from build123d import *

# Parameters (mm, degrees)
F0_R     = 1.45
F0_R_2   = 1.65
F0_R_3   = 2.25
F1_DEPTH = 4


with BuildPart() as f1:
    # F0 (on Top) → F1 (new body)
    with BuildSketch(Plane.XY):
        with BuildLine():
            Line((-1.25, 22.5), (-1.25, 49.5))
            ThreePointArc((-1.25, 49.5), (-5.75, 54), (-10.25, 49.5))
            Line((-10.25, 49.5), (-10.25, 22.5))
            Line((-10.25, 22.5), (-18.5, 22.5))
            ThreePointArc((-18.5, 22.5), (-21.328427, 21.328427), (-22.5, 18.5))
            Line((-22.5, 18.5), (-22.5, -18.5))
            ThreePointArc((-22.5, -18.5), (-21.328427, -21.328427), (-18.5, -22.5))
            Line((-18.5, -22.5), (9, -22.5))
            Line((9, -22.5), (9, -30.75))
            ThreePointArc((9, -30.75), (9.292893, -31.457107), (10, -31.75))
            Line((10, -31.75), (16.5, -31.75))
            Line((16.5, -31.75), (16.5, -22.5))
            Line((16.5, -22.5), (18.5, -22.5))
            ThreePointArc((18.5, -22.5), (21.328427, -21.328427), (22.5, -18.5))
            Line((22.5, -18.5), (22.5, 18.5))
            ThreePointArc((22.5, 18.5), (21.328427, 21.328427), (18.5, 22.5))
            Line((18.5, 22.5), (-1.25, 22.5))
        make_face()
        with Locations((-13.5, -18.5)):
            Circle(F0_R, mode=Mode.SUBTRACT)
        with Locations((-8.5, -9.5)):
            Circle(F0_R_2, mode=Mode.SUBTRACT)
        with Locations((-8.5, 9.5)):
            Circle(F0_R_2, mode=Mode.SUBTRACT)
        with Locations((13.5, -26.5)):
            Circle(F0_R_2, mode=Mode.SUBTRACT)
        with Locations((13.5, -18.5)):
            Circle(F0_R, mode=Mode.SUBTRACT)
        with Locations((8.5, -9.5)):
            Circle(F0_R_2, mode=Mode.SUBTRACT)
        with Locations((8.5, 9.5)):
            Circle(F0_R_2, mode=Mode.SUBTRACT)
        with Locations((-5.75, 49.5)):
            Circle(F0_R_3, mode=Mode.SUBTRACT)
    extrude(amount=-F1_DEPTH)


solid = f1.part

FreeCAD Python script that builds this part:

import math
import FreeCAD as App
import Part
import Sketcher
from FreeCAD import Vector
Q = App.Units.Quantity

doc = App.newDocument("Part")
body = doc.addObject("PartDesign::Body", "Body")

# Sketch on XY plane
sketch1 = body.newObject("Sketcher::SketchObject", "Sketch")
sketch1.AttachmentSupport = (doc.getObject("XY_Plane"), [""])
sketch1.MapMode = "FlatFace"
sketch1.addGeometry([
    Part.LineSegment(Vector(-1.2, 22.5, 0), Vector(-1.2, 49.5, 0)),  # 0
    Part.ArcOfCircle(Part.Circle(Vector(-5.8, 49.5, 0), Vector(0, 0, 1), 4.5), math.radians(0), math.radians(180)),  # 1
    Part.LineSegment(Vector(-10.2, 49.5, 0), Vector(-10.2, 22.5, 0)),  # 2
    Part.LineSegment(Vector(-10.2, 22.5, 0), Vector(-18.5, 22.5, 0)),  # 3
    Part.ArcOfCircle(Part.Circle(Vector(-18.5, 18.5, 0), Vector(0, 0, 1), 4), math.radians(90), math.radians(180)),  # 4
    Part.LineSegment(Vector(-22.5, 18.5, 0), Vector(-22.5, -18.5, 0)),  # 5
    Part.ArcOfCircle(Part.Circle(Vector(-18.5, -18.5, 0), Vector(0, 0, 1), 4), math.radians(-180), math.radians(-90)),  # 6
    Part.LineSegment(Vector(-18.5, -22.5, 0), Vector(9, -22.5, 0)),  # 7
    Part.LineSegment(Vector(9, -22.5, 0), Vector(9, -30.8, 0)),  # 8
    Part.ArcOfCircle(Part.Circle(Vector(10, -30.8, 0), Vector(0, 0, 1), 1), math.radians(180), math.radians(270)),  # 9
    Part.LineSegment(Vector(10, -31.8, 0), Vector(16.5, -31.8, 0)),  # 10
    Part.LineSegment(Vector(16.5, -31.8, 0), Vector(16.5, -22.5, 0)),  # 11
    Part.LineSegment(Vector(16.5, -22.5, 0), Vector(18.5, -22.5, 0)),  # 12
    Part.ArcOfCircle(Part.Circle(Vector(18.5, -18.5, 0), Vector(0, 0, 1), 4), math.radians(-90), math.radians(0)),  # 13
    Part.LineSegment(Vector(22.5, -18.5, 0), Vector(22.5, 18.5, 0)),  # 14
    Part.ArcOfCircle(Part.Circle(Vector(18.5, 18.5, 0), Vector(0, 0, 1), 4), math.radians(0), math.radians(90)),  # 15
    Part.LineSegment(Vector(18.5, 22.5, 0), Vector(-1.2, 22.5, 0)),  # 16
    Part.Circle(Vector(-13.5, -18.5, 0), Vector(0, 0, 1), 1.4),  # 17
    Part.Circle(Vector(-8.5, -9.5, 0), Vector(0, 0, 1), 1.6),  # 18
    Part.Circle(Vector(-8.5, 9.5, 0), Vector(0, 0, 1), 1.6),  # 19
    Part.Circle(Vector(13.5, -26.5, 0), Vector(0, 0, 1), 1.6),  # 20
    Part.Circle(Vector(13.5, -18.5, 0), Vector(0, 0, 1), 1.4),  # 21
    Part.Circle(Vector(8.5, -9.5, 0), Vector(0, 0, 1), 1.6),  # 22
    Part.Circle(Vector(8.5, 9.5, 0), Vector(0, 0, 1), 1.6),  # 23
    Part.Circle(Vector(-5.8, 49.5, 0), Vector(0, 0, 1), 2.2),  # 24
], False)
sketch1.addConstraint([
    Sketcher.Constraint("Tangent", 0, 2, 1, 1),
    Sketcher.Constraint("Tangent", 1, 2, 2, 1),
    Sketcher.Constraint("Coincident", 2, 2, 3, 1),
    Sketcher.Constraint("Tangent", 3, 2, 4, 1),
    Sketcher.Constraint("Tangent", 4, 2, 5, 1),
    Sketcher.Constraint("Tangent", 5, 2, 6, 1),
    Sketcher.Constraint("Tangent", 6, 2, 7, 1),
    Sketcher.Constraint("Coincident", 7, 2, 8, 1),
    Sketcher.Constraint("Tangent", 8, 2, 9, 1),
    Sketcher.Constraint("Tangent", 9, 2, 10, 1),
    Sketcher.Constraint("Coincident", 10, 2, 11, 1),
    Sketcher.Constraint("Coincident", 11, 2, 12, 1),
    Sketcher.Constraint("Tangent", 12, 2, 13, 1),
    Sketcher.Constraint("Tangent", 13, 2, 14, 1),
    Sketcher.Constraint("Tangent", 14, 2, 15, 1),
    Sketcher.Constraint("Tangent", 15, 2, 16, 1),
    Sketcher.Constraint("Coincident", 16, 2, 0, 1),
    Sketcher.Constraint("Vertical", 0),
    Sketcher.Constraint("Vertical", 2),
    Sketcher.Constraint("Horizontal", 3),
    Sketcher.Constraint("Vertical", 5),
    Sketcher.Constraint("Horizontal", 7),
    Sketcher.Constraint("Vertical", 8),
    Sketcher.Constraint("Horizontal", 10),
    Sketcher.Constraint("Vertical", 11),
    Sketcher.Constraint("Horizontal", 12),
    Sketcher.Constraint("Vertical", 14),
    Sketcher.Constraint("Horizontal", 16),
    Sketcher.Constraint("Coincident", 24, 3, 1, 3),
    Sketcher.Constraint("Equal", 4, 6),
    Sketcher.Constraint("Equal", 6, 13),
    Sketcher.Constraint("Equal", 13, 15),
    Sketcher.Constraint("Equal", 18, 19),
    Sketcher.Constraint("Equal", 19, 20),
    Sketcher.Constraint("Equal", 17, 21),
    Sketcher.Constraint("Equal", 20, 22),
    Sketcher.Constraint("Equal", 22, 23),
    Sketcher.Constraint("Symmetric", 4, 3, 13, 3, -1, 1),
    Sketcher.Constraint("Symmetric", 19, 3, 22, 3, -1, 1),
    Sketcher.Constraint("Symmetric", 18, 3, 23, 3, -1, 1),
    Sketcher.Constraint("Symmetric", 17, 3, 21, 3, -2),
    Sketcher.Constraint("Symmetric", 18, 3, 22, 3, -2),
    Sketcher.Constraint("Horizontal", 6, 3, 13, 3),
    Sketcher.Constraint("Horizontal", 4, 3, 15, 3),
    Sketcher.Constraint("Horizontal", 13, 3, 17, 3),
    Sketcher.Constraint("Vertical", 20, 3, 21, 3),
    Sketcher.Constraint("Equal", 3, 8),
    Sketcher.Constraint("Radius", 4, Q("4 mm")),
    Sketcher.Constraint("Radius", 9, Q("0.999999 mm")),
    Sketcher.Constraint("Diameter", 17, Q("2.9 mm")),
    Sketcher.Constraint("Diameter", 18, Q("3.3 mm")),
    Sketcher.Constraint("Diameter", 24, Q("4.5 mm")),
    Sketcher.Constraint("Radius", 1, Q("4.5 mm")),
    Sketcher.Constraint("DistanceX", 12, 1, 12, 2, Q("2 mm")),
    Sketcher.Constraint("DistanceY", 0, 1, 0, 2, Q("27 mm")),
    Sketcher.Constraint("DistanceY", 5, 2, 5, 1, Q("37 mm")),
    Sketcher.Constraint("DistanceX", 7, 1, 7, 2, Q("27.5 mm")),
    Sketcher.Constraint("DistanceX", 10, 1, 10, 2, Q("6.5 mm")),
    Sketcher.Constraint("DistanceX", 6, 3, 17, 3, Q("5 mm")),
    Sketcher.Constraint("DistanceX", 17, 3, 18, 3, Q("5 mm")),
    Sketcher.Constraint("DistanceY", 17, 3, 18, 3, Q("9 mm")),
    Sketcher.Constraint("DistanceY", 20, 3, 13, 3, Q("8 mm")),
    Sketcher.Constraint("DistanceX", 3, 2, 3, 1, Q("8.25 mm")),
])
pad1 = body.newObject("PartDesign::Pad", "Pad")
pad1.Profile = sketch1
pad1.Length = 4
pad1.Reversed = True

doc.recompute()
